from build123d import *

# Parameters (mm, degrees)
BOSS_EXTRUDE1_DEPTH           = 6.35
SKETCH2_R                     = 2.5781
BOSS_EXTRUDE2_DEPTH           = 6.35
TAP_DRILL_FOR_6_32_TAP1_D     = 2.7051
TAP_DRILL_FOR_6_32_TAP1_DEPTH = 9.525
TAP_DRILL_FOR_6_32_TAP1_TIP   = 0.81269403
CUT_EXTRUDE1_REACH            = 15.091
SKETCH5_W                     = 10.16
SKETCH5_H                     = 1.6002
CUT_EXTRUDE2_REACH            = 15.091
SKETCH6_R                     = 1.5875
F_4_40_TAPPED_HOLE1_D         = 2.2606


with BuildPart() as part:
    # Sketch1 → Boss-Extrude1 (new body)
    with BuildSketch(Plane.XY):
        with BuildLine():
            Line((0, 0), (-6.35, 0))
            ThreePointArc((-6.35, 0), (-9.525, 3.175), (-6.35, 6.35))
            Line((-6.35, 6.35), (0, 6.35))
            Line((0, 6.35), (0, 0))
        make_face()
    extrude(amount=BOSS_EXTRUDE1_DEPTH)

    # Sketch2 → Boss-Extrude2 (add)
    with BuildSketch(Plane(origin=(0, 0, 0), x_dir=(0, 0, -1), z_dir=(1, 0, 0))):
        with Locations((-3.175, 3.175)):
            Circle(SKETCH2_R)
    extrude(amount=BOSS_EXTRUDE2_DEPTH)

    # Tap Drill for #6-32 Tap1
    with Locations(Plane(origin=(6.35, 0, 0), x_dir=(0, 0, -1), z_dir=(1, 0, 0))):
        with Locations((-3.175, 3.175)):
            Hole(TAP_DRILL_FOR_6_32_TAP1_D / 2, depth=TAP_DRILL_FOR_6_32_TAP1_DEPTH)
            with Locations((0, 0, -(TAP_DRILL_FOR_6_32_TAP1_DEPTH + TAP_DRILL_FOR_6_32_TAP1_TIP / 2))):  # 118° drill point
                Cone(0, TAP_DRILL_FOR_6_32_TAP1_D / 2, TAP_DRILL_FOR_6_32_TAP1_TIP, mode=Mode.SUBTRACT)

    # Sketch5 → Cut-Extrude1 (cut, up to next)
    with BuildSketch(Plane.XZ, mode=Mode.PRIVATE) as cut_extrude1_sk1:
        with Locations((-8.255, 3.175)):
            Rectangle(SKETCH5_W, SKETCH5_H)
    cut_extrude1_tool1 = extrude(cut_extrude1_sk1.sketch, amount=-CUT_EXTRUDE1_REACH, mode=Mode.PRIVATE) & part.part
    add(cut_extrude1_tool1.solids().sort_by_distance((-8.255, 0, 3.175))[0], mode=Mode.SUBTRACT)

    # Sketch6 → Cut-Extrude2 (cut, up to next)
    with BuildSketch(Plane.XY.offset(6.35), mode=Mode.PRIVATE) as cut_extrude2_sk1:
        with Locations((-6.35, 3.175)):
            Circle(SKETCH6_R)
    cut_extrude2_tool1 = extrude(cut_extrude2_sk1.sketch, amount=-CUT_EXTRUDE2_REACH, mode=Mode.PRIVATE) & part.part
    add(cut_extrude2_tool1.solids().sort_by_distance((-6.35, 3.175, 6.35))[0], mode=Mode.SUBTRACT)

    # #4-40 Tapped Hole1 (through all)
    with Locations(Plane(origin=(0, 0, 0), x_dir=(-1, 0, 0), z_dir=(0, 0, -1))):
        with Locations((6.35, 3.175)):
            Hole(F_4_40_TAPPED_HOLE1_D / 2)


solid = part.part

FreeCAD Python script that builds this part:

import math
import FreeCAD as App
import Part
import Sketcher
from FreeCAD import Vector
Q = App.Units.Quantity


def add_polygon(sketch, points):
    """Adds a closed chain of lines whose ends are joined by coincident constraints."""
    first, n = sketch.GeometryCount, len(points)
    for a, b in zip(points, points[1:] + points[:1]):
        sketch.addGeometry(Part.LineSegment(App.Vector(*a, 0), App.Vector(*b, 0)), False)
    for i in range(n):
        sketch.addConstraint(Sketcher.Constraint("Coincident", first + i, 2, first + (i + 1) % n, 1))

doc = App.newDocument("Part")
body = doc.addObject("PartDesign::Body", "Body")

# Sketch on XY plane
sketch1 = doc.addObject("Sketcher::SketchObject", "Sketch")
body.addObject(sketch1)
sketch1.AttachmentSupport = (doc.XY_Plane, [""])
sketch1.MapMode = "FlatFace"
sketch1.addGeometry(Part.LineSegment(Vector(-6.35, 0, 0), Vector(0, 0, 0)), False)
sketch1.addGeometry(Part.LineSegment(Vector(0, 0, 0), Vector(0, 6.35, 0)), False)
sketch1.addGeometry(Part.LineSegment(Vector(0, 6.35, 0), Vector(-6.35, 6.35, 0)), False)
sketch1.addGeometry(Part.ArcOfCircle(Part.Circle(Vector(-6.35, 3.175, 0), Vector(0, 0, 1), 3.175), math.radians(90), math.radians(270)), False)
sketch1.addConstraint(Sketcher.Constraint("Coincident", 0, 2, 1, 1))
sketch1.addConstraint(Sketcher.Constraint("Coincident", 1, 2, 2, 1))
sketch1.addConstraint(Sketcher.Constraint("Tangent", 2, 2, 3, 1))
sketch1.addConstraint(Sketcher.Constraint("Tangent", 3, 2, 0, 1))
sketch1.addConstraint(Sketcher.Constraint("Horizontal", 0))
sketch1.addConstraint(Sketcher.Constraint("Vertical", 1))
sketch1.addConstraint(Sketcher.Constraint("Horizontal", 2))
sketch1.addConstraint(Sketcher.Constraint("Coincident", 0, 2, -1, 1))
sketch1.addConstraint(Sketcher.Constraint("Equal", 2, 1))
sketch1.addConstraint(Sketcher.Constraint("Radius", 3, Q("0.125 in")))
pad1 = doc.addObject("PartDesign::Pad", "Pad")
body.addObject(pad1)
pad1.Profile = sketch1
pad1.Length = Q("0.25 in")

# Sketch on YZ plane
sketch2 = doc.addObject("Sketcher::SketchObject", "Sketch001")
body.addObject(sketch2)
sketch2.AttachmentSupport = (doc.YZ_Plane, [""])
sketch2.MapMode = "FlatFace"
sketch2.addGeometry(Part.Circle(Vector(3.175, 3.175, 0), Vector(0, 0, 1), 2.5781), False)
sketch2.addConstraint(Sketcher.Constraint("Diameter", 0, Q("0.203 in")))
sketch2.addConstraint(Sketcher.Constraint("DistanceX", -1, 1, 0, 3, Q("0.125 in")))
sketch2.addConstraint(Sketcher.Constraint("DistanceY", -1, 1, 0, 3, Q("0.125 in")))
pad2 = doc.addObject("PartDesign::Pad", "Pad001")
body.addObject(pad2)
pad2.Profile = sketch2
pad2.Length = Q("0.25 in")

# Sketch on YZ plane
sketch3 = doc.addObject("Sketcher::SketchObject", "Sketch002")
body.addObject(sketch3)
sketch3.AttachmentSupport = (doc.YZ_Plane, [""])
sketch3.MapMode = "FlatFace"
sketch3.AttachmentOffset = App.Placement(Vector(0, 0, 0.25 * 25.4), App.Rotation())
sketch3.addGeometry(Part.Circle(Vector(3.175, 3.175, 0), Vector(0, 0, 1), 1.35255), False)
sketch3.addConstraint(Sketcher.Constraint("Diameter", 0, Q("0.1065 in")))
sketch3.addConstraint(Sketcher.Constraint("DistanceX", -1, 1, 0, 3, Q("0.125 in")))
sketch3.addConstraint(Sketcher.Constraint("DistanceY", -1, 1, 0, 3, Q("0.125 in")))
doc.recompute()
hole = doc.addObject("PartDesign::Hole", "Hole")
body.addObject(hole)
hole.Profile = sketch3
hole.ThreadType = "None"
hole.Diameter = Q("0.1065 in")
hole.DepthType = "Dimension"
hole.Depth = Q("0.375 in")
hole.DrillPoint = "Angled"
hole.DrillPointAngle = 118

# Sketch on XZ plane
sketch4 = doc.addObject("Sketcher::SketchObject", "Sketch003")
body.addObject(sketch4)
sketch4.AttachmentSupport = (doc.XZ_Plane, [""])
sketch4.MapMode = "FlatFace"
add_polygon(sketch4, [(-13.335, 3.9751), (-13.335, 2.3749), (-3.175, 2.3749), (-3.175, 3.9751)])  # lines 0-3
sketch4.addConstraint(Sketcher.Constraint("Vertical", 0))
sketch4.addConstraint(Sketcher.Constraint("Horizontal", 1))
sketch4.addConstraint(Sketcher.Constraint("Vertical", 2))
sketch4.addConstraint(Sketcher.Constraint("Horizontal", 3))
sketch4.addConstraint(Sketcher.Constraint("DistanceX", 1, 1, 1, 2, Q("0.4 in")))
sketch4.addConstraint(Sketcher.Constraint("DistanceY", 0, 2, 0, 1, Q("0.063 in")))
sketch4.addConstraint(Sketcher.Constraint("DistanceX", 0, 2, -1, 1, Q("0.525 in")))
sketch4.addConstraint(Sketcher.Constraint("DistanceY", -1, 1, 0, 2, Q("0.0935 in")))
pocket1 = doc.addObject("PartDesign::Pocket", "Pocket")
body.addObject(pocket1)
pocket1.Profile = sketch4
pocket1.Length = Q("0.25 in")

# Sketch on XY plane
sketch5 = doc.addObject("Sketcher::SketchObject", "Sketch004")
body.addObject(sketch5)
sketch5.AttachmentSupport = (doc.XY_Plane, [""])
sketch5.MapMode = "FlatFace"
sketch5.AttachmentOffset = App.Placement(Vector(0, 0, 0.25 * 25.4), App.Rotation())
sketch5.addGeometry(Part.Circle(Vector(-6.35, 3.175, 0), Vector(0, 0, 1), 1.5875), False)
sketch5.addConstraint(Sketcher.Constraint("Diameter", 0, Q("0.125 in")))
sketch5.addConstraint(Sketcher.Constraint("DistanceX", 0, 3, -1, 1, Q("0.25 in")))
sketch5.addConstraint(Sketcher.Constraint("DistanceY", -1, 1, 0, 3, Q("0.125 in")))
pocket2 = doc.addObject("PartDesign::Pocket", "Pocket001")
body.addObject(pocket2)
pocket2.Profile = sketch5
pocket2.Type = "UpToFirst"

# Sketch on XY plane
sketch6 = doc.addObject("Sketcher::SketchObject", "Sketch005")
body.addObject(sketch6)
sketch6.AttachmentSupport = (doc.XY_Plane, [""])
sketch6.MapMode = "FlatFace"
sketch6.addGeometry(Part.Circle(Vector(-6.35, 3.175, 0), Vector(0, 0, 1), 1.1303), False)
sketch6.addConstraint(Sketcher.Constraint("Diameter", 0, Q("0.089 in")))
sketch6.addConstraint(Sketcher.Constraint("DistanceX", 0, 3, -1, 1, Q("0.25 in")))
sketch6.addConstraint(Sketcher.Constraint("DistanceY", -1, 1, 0, 3, Q("0.125 in")))
doc.recompute()
hole2 = doc.addObject("PartDesign::Hole", "Hole001")
body.addObject(hole2)
hole2.Profile = sketch6
hole2.ThreadType = "None"
hole2.Diameter = Q("0.089 in")
hole2.DepthType = "ThroughAll"
hole2.Reversed = True

doc.recompute()
